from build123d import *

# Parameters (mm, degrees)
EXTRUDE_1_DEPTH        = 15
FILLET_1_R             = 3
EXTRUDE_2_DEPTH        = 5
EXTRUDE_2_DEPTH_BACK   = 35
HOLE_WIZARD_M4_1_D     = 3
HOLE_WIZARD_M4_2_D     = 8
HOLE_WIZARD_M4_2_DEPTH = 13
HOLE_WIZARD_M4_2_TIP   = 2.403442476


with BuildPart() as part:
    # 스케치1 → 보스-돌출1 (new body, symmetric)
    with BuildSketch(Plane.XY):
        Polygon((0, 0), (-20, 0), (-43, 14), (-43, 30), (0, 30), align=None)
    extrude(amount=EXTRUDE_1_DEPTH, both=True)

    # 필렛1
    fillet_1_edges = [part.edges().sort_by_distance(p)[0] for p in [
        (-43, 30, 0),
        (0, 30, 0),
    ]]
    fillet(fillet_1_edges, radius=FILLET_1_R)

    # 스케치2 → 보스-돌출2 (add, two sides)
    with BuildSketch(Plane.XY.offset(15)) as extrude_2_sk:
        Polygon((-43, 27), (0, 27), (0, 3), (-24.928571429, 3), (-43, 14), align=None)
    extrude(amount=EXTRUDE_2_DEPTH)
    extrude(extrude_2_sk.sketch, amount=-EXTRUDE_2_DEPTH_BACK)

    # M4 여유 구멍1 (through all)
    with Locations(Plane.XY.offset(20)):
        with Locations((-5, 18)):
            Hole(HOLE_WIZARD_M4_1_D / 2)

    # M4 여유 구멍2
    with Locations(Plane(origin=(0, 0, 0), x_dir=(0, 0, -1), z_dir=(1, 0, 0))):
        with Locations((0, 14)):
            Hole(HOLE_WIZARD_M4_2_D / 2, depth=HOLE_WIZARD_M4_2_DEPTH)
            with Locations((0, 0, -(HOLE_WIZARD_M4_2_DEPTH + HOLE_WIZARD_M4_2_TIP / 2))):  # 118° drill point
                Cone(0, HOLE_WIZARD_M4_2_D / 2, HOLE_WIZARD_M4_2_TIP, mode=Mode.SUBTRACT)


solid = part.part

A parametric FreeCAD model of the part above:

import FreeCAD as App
import Part
import Sketcher
Q = App.Units.Quantity


def edges_at(feature, points):
    """Names of the edges that pass closest to the given points."""
    edges = feature.Shape.Edges
    near = lambda p: min(range(len(edges)), key=lambda i: edges[i].distToShape(Part.Vertex(*p))[0])
    return sorted({f"Edge{near(p) + 1}" for p in points})

doc = App.newDocument("Part")
body = doc.addObject("PartDesign::Body", "Body")

sketch1 = doc.addObject("Sketcher::SketchObject", "Sketch")
body.addObject(sketch1)
sketch1.AttachmentSupport = (doc.XY_Plane, [""])
sketch1.MapMode = "FlatFace"
sketch1.addGeometry([
    Part.LineSegment(App.Vector(-20, 0, 0), App.Vector(0, 0, 0)),
    Part.LineSegment(App.Vector(0, 0, 0), App.Vector(0, 30, 0)),
    Part.LineSegment(App.Vector(0, 30, 0), App.Vector(-43, 30, 0)),
    Part.LineSegment(App.Vector(-43, 30, 0), App.Vector(-43, 14, 0)),
    Part.LineSegment(App.Vector(-43, 14, 0), App.Vector(-20, 0, 0)),
], False)
sketch1.addConstraint([
    Sketcher.Constraint("Coincident", 0, 2, 1, 1),
    Sketcher.Constraint("Coincident", 1, 2, 2, 1),
    Sketcher.Constraint("Coincident", 2, 2, 3, 1),
    Sketcher.Constraint("Coincident", 3, 2, 4, 1),
    Sketcher.Constraint("Coincident", 4, 2, 0, 1),
    Sketcher.Constraint("Horizontal", 0),
    Sketcher.Constraint("Vertical", 1),
    Sketcher.Constraint("Horizontal", 2),
    Sketcher.Constraint("Vertical", 3),
    Sketcher.Constraint("Coincident", 0, 2, -1, 1),
    Sketcher.Constraint("DistanceX", 0, 1, 0, 2, Q("20 mm")),
    Sketcher.Constraint("DistanceX", 2, 2, 2, 1, Q("43 mm")),
    Sketcher.Constraint("DistanceY", 1, 1, 1, 2, Q("30 mm")),
    Sketcher.Constraint("DistanceY", 3, 2, 3, 1, Q("16 mm")),
])
pad1 = doc.addObject("PartDesign::Pad", "Pad")
body.addObject(pad1)
pad1.Profile = sketch1
pad1.Length = 30
pad1.Midplane = True
doc.recompute()

fillet = doc.addObject("PartDesign::Fillet", "Fillet")
body.addObject(fillet)
fillet.Base = (pad1, edges_at(pad1, [(-43, 30, 0), (0, 30, 0)]))
fillet.Radius = 3

sketch2 = doc.addObject("Sketcher::SketchObject", "Sketch001")
body.addObject(sketch2)
sketch2.AttachmentSupport = (doc.XY_Plane, [""])
sketch2.MapMode = "FlatFace"
sketch2.AttachmentOffset = App.Placement(App.Vector(0, 0, 15), App.Rotation())
sketch2.addGeometry([
    Part.LineSegment(App.Vector(0, 27, 0), App.Vector(-43, 27, 0)),
    Part.LineSegment(App.Vector(-43, 27, 0), App.Vector(-43, 14, 0)),
    Part.LineSegment(App.Vector(-43, 14, 0), App.Vector(-24.928571, 3, 0)),
    Part.LineSegment(App.Vector(-24.928571, 3, 0), App.Vector(0, 3, 0)),
    Part.LineSegment(App.Vector(0, 3, 0), App.Vector(0, 27, 0)),
], False)
sketch2.addConstraint([
    Sketcher.Constraint("Coincident", 0, 2, 1, 1),
    Sketcher.Constraint("Coincident", 1, 2, 2, 1),
    Sketcher.Constraint("Coincident", 2, 2, 3, 1),
    Sketcher.Constraint("Coincident", 3, 2, 4, 1),
    Sketcher.Constraint("Coincident", 4, 2, 0, 1),
    Sketcher.Constraint("Horizontal", 0),
    Sketcher.Constraint("Vertical", 1),
    Sketcher.Constraint("Horizontal", 3),
    Sketcher.Constraint("Vertical", 4),
    Sketcher.Constraint("PointOnObject", 3, 2, -2),
    Sketcher.Constraint("DistanceX", 0, 2, 0, 1, Q("43 mm")),
    Sketcher.Constraint("DistanceY", 1, 2, 1, 1, Q("13 mm")),
    Sketcher.Constraint("DistanceY", 4, 1, 4, 2, Q("24 mm")),
    Sketcher.Constraint("DistanceY", -1, 1, 0, 2, Q("27 mm")),
    Sketcher.Constraint("DistanceX", 3, 1, 3, 2, Q("24.928571 mm")),
])
pad2 = doc.addObject("PartDesign::Pad", "Pad001")
body.addObject(pad2)
pad2.Profile = sketch2
pad2.Type = "TwoLengths"
pad2.Length = 5
pad2.Length2 = 35

sketch3 = doc.addObject("Sketcher::SketchObject", "Sketch002")
body.addObject(sketch3)
sketch3.AttachmentSupport = (doc.XY_Plane, [""])
sketch3.MapMode = "FlatFace"
sketch3.AttachmentOffset = App.Placement(App.Vector(0, 0, 20), App.Rotation())
sketch3.addGeometry(Part.Circle(App.Vector(-5, 18, 0), App.Vector(0, 0, 1), 1.5), False)
sketch3.addConstraint([
    Sketcher.Constraint("Diameter", 0, Q("3 mm")),
    Sketcher.Constraint("DistanceX", 0, 3, -1, 1, Q("5 mm")),
    Sketcher.Constraint("DistanceY", -1, 1, 0, 3, Q("18 mm")),
])
doc.recompute()
hole = doc.addObject("PartDesign::Hole", "Hole")
body.addObject(hole)
hole.Profile = sketch3
hole.ThreadType = "None"
hole.Diameter = 3
hole.DepthType = "ThroughAll"

sketch4 = doc.addObject("Sketcher::SketchObject", "Sketch003")
body.addObject(sketch4)
sketch4.AttachmentSupport = (doc.YZ_Plane, [""])
sketch4.MapMode = "FlatFace"
sketch4.addGeometry(Part.Circle(App.Vector(14, 0, 0), App.Vector(0, 0, 1), 4), False)
sketch4.addConstraint([
    Sketcher.Constraint("PointOnObject", 0, 3, -1),
    Sketcher.Constraint("Diameter", 0, Q("8 mm")),
    Sketcher.Constraint("DistanceX", -1, 1, 0, 3, Q("14 mm")),
])
doc.recompute()
hole2 = doc.addObject("PartDesign::Hole", "Hole001")
body.addObject(hole2)
hole2.Profile = sketch4
hole2.ThreadType = "None"
hole2.Diameter = 8
hole2.DepthType = "Dimension"
hole2.Depth = 13
hole2.DrillPoint = "Angled"
hole2.DrillPointAngle = 118

doc.recompute()
